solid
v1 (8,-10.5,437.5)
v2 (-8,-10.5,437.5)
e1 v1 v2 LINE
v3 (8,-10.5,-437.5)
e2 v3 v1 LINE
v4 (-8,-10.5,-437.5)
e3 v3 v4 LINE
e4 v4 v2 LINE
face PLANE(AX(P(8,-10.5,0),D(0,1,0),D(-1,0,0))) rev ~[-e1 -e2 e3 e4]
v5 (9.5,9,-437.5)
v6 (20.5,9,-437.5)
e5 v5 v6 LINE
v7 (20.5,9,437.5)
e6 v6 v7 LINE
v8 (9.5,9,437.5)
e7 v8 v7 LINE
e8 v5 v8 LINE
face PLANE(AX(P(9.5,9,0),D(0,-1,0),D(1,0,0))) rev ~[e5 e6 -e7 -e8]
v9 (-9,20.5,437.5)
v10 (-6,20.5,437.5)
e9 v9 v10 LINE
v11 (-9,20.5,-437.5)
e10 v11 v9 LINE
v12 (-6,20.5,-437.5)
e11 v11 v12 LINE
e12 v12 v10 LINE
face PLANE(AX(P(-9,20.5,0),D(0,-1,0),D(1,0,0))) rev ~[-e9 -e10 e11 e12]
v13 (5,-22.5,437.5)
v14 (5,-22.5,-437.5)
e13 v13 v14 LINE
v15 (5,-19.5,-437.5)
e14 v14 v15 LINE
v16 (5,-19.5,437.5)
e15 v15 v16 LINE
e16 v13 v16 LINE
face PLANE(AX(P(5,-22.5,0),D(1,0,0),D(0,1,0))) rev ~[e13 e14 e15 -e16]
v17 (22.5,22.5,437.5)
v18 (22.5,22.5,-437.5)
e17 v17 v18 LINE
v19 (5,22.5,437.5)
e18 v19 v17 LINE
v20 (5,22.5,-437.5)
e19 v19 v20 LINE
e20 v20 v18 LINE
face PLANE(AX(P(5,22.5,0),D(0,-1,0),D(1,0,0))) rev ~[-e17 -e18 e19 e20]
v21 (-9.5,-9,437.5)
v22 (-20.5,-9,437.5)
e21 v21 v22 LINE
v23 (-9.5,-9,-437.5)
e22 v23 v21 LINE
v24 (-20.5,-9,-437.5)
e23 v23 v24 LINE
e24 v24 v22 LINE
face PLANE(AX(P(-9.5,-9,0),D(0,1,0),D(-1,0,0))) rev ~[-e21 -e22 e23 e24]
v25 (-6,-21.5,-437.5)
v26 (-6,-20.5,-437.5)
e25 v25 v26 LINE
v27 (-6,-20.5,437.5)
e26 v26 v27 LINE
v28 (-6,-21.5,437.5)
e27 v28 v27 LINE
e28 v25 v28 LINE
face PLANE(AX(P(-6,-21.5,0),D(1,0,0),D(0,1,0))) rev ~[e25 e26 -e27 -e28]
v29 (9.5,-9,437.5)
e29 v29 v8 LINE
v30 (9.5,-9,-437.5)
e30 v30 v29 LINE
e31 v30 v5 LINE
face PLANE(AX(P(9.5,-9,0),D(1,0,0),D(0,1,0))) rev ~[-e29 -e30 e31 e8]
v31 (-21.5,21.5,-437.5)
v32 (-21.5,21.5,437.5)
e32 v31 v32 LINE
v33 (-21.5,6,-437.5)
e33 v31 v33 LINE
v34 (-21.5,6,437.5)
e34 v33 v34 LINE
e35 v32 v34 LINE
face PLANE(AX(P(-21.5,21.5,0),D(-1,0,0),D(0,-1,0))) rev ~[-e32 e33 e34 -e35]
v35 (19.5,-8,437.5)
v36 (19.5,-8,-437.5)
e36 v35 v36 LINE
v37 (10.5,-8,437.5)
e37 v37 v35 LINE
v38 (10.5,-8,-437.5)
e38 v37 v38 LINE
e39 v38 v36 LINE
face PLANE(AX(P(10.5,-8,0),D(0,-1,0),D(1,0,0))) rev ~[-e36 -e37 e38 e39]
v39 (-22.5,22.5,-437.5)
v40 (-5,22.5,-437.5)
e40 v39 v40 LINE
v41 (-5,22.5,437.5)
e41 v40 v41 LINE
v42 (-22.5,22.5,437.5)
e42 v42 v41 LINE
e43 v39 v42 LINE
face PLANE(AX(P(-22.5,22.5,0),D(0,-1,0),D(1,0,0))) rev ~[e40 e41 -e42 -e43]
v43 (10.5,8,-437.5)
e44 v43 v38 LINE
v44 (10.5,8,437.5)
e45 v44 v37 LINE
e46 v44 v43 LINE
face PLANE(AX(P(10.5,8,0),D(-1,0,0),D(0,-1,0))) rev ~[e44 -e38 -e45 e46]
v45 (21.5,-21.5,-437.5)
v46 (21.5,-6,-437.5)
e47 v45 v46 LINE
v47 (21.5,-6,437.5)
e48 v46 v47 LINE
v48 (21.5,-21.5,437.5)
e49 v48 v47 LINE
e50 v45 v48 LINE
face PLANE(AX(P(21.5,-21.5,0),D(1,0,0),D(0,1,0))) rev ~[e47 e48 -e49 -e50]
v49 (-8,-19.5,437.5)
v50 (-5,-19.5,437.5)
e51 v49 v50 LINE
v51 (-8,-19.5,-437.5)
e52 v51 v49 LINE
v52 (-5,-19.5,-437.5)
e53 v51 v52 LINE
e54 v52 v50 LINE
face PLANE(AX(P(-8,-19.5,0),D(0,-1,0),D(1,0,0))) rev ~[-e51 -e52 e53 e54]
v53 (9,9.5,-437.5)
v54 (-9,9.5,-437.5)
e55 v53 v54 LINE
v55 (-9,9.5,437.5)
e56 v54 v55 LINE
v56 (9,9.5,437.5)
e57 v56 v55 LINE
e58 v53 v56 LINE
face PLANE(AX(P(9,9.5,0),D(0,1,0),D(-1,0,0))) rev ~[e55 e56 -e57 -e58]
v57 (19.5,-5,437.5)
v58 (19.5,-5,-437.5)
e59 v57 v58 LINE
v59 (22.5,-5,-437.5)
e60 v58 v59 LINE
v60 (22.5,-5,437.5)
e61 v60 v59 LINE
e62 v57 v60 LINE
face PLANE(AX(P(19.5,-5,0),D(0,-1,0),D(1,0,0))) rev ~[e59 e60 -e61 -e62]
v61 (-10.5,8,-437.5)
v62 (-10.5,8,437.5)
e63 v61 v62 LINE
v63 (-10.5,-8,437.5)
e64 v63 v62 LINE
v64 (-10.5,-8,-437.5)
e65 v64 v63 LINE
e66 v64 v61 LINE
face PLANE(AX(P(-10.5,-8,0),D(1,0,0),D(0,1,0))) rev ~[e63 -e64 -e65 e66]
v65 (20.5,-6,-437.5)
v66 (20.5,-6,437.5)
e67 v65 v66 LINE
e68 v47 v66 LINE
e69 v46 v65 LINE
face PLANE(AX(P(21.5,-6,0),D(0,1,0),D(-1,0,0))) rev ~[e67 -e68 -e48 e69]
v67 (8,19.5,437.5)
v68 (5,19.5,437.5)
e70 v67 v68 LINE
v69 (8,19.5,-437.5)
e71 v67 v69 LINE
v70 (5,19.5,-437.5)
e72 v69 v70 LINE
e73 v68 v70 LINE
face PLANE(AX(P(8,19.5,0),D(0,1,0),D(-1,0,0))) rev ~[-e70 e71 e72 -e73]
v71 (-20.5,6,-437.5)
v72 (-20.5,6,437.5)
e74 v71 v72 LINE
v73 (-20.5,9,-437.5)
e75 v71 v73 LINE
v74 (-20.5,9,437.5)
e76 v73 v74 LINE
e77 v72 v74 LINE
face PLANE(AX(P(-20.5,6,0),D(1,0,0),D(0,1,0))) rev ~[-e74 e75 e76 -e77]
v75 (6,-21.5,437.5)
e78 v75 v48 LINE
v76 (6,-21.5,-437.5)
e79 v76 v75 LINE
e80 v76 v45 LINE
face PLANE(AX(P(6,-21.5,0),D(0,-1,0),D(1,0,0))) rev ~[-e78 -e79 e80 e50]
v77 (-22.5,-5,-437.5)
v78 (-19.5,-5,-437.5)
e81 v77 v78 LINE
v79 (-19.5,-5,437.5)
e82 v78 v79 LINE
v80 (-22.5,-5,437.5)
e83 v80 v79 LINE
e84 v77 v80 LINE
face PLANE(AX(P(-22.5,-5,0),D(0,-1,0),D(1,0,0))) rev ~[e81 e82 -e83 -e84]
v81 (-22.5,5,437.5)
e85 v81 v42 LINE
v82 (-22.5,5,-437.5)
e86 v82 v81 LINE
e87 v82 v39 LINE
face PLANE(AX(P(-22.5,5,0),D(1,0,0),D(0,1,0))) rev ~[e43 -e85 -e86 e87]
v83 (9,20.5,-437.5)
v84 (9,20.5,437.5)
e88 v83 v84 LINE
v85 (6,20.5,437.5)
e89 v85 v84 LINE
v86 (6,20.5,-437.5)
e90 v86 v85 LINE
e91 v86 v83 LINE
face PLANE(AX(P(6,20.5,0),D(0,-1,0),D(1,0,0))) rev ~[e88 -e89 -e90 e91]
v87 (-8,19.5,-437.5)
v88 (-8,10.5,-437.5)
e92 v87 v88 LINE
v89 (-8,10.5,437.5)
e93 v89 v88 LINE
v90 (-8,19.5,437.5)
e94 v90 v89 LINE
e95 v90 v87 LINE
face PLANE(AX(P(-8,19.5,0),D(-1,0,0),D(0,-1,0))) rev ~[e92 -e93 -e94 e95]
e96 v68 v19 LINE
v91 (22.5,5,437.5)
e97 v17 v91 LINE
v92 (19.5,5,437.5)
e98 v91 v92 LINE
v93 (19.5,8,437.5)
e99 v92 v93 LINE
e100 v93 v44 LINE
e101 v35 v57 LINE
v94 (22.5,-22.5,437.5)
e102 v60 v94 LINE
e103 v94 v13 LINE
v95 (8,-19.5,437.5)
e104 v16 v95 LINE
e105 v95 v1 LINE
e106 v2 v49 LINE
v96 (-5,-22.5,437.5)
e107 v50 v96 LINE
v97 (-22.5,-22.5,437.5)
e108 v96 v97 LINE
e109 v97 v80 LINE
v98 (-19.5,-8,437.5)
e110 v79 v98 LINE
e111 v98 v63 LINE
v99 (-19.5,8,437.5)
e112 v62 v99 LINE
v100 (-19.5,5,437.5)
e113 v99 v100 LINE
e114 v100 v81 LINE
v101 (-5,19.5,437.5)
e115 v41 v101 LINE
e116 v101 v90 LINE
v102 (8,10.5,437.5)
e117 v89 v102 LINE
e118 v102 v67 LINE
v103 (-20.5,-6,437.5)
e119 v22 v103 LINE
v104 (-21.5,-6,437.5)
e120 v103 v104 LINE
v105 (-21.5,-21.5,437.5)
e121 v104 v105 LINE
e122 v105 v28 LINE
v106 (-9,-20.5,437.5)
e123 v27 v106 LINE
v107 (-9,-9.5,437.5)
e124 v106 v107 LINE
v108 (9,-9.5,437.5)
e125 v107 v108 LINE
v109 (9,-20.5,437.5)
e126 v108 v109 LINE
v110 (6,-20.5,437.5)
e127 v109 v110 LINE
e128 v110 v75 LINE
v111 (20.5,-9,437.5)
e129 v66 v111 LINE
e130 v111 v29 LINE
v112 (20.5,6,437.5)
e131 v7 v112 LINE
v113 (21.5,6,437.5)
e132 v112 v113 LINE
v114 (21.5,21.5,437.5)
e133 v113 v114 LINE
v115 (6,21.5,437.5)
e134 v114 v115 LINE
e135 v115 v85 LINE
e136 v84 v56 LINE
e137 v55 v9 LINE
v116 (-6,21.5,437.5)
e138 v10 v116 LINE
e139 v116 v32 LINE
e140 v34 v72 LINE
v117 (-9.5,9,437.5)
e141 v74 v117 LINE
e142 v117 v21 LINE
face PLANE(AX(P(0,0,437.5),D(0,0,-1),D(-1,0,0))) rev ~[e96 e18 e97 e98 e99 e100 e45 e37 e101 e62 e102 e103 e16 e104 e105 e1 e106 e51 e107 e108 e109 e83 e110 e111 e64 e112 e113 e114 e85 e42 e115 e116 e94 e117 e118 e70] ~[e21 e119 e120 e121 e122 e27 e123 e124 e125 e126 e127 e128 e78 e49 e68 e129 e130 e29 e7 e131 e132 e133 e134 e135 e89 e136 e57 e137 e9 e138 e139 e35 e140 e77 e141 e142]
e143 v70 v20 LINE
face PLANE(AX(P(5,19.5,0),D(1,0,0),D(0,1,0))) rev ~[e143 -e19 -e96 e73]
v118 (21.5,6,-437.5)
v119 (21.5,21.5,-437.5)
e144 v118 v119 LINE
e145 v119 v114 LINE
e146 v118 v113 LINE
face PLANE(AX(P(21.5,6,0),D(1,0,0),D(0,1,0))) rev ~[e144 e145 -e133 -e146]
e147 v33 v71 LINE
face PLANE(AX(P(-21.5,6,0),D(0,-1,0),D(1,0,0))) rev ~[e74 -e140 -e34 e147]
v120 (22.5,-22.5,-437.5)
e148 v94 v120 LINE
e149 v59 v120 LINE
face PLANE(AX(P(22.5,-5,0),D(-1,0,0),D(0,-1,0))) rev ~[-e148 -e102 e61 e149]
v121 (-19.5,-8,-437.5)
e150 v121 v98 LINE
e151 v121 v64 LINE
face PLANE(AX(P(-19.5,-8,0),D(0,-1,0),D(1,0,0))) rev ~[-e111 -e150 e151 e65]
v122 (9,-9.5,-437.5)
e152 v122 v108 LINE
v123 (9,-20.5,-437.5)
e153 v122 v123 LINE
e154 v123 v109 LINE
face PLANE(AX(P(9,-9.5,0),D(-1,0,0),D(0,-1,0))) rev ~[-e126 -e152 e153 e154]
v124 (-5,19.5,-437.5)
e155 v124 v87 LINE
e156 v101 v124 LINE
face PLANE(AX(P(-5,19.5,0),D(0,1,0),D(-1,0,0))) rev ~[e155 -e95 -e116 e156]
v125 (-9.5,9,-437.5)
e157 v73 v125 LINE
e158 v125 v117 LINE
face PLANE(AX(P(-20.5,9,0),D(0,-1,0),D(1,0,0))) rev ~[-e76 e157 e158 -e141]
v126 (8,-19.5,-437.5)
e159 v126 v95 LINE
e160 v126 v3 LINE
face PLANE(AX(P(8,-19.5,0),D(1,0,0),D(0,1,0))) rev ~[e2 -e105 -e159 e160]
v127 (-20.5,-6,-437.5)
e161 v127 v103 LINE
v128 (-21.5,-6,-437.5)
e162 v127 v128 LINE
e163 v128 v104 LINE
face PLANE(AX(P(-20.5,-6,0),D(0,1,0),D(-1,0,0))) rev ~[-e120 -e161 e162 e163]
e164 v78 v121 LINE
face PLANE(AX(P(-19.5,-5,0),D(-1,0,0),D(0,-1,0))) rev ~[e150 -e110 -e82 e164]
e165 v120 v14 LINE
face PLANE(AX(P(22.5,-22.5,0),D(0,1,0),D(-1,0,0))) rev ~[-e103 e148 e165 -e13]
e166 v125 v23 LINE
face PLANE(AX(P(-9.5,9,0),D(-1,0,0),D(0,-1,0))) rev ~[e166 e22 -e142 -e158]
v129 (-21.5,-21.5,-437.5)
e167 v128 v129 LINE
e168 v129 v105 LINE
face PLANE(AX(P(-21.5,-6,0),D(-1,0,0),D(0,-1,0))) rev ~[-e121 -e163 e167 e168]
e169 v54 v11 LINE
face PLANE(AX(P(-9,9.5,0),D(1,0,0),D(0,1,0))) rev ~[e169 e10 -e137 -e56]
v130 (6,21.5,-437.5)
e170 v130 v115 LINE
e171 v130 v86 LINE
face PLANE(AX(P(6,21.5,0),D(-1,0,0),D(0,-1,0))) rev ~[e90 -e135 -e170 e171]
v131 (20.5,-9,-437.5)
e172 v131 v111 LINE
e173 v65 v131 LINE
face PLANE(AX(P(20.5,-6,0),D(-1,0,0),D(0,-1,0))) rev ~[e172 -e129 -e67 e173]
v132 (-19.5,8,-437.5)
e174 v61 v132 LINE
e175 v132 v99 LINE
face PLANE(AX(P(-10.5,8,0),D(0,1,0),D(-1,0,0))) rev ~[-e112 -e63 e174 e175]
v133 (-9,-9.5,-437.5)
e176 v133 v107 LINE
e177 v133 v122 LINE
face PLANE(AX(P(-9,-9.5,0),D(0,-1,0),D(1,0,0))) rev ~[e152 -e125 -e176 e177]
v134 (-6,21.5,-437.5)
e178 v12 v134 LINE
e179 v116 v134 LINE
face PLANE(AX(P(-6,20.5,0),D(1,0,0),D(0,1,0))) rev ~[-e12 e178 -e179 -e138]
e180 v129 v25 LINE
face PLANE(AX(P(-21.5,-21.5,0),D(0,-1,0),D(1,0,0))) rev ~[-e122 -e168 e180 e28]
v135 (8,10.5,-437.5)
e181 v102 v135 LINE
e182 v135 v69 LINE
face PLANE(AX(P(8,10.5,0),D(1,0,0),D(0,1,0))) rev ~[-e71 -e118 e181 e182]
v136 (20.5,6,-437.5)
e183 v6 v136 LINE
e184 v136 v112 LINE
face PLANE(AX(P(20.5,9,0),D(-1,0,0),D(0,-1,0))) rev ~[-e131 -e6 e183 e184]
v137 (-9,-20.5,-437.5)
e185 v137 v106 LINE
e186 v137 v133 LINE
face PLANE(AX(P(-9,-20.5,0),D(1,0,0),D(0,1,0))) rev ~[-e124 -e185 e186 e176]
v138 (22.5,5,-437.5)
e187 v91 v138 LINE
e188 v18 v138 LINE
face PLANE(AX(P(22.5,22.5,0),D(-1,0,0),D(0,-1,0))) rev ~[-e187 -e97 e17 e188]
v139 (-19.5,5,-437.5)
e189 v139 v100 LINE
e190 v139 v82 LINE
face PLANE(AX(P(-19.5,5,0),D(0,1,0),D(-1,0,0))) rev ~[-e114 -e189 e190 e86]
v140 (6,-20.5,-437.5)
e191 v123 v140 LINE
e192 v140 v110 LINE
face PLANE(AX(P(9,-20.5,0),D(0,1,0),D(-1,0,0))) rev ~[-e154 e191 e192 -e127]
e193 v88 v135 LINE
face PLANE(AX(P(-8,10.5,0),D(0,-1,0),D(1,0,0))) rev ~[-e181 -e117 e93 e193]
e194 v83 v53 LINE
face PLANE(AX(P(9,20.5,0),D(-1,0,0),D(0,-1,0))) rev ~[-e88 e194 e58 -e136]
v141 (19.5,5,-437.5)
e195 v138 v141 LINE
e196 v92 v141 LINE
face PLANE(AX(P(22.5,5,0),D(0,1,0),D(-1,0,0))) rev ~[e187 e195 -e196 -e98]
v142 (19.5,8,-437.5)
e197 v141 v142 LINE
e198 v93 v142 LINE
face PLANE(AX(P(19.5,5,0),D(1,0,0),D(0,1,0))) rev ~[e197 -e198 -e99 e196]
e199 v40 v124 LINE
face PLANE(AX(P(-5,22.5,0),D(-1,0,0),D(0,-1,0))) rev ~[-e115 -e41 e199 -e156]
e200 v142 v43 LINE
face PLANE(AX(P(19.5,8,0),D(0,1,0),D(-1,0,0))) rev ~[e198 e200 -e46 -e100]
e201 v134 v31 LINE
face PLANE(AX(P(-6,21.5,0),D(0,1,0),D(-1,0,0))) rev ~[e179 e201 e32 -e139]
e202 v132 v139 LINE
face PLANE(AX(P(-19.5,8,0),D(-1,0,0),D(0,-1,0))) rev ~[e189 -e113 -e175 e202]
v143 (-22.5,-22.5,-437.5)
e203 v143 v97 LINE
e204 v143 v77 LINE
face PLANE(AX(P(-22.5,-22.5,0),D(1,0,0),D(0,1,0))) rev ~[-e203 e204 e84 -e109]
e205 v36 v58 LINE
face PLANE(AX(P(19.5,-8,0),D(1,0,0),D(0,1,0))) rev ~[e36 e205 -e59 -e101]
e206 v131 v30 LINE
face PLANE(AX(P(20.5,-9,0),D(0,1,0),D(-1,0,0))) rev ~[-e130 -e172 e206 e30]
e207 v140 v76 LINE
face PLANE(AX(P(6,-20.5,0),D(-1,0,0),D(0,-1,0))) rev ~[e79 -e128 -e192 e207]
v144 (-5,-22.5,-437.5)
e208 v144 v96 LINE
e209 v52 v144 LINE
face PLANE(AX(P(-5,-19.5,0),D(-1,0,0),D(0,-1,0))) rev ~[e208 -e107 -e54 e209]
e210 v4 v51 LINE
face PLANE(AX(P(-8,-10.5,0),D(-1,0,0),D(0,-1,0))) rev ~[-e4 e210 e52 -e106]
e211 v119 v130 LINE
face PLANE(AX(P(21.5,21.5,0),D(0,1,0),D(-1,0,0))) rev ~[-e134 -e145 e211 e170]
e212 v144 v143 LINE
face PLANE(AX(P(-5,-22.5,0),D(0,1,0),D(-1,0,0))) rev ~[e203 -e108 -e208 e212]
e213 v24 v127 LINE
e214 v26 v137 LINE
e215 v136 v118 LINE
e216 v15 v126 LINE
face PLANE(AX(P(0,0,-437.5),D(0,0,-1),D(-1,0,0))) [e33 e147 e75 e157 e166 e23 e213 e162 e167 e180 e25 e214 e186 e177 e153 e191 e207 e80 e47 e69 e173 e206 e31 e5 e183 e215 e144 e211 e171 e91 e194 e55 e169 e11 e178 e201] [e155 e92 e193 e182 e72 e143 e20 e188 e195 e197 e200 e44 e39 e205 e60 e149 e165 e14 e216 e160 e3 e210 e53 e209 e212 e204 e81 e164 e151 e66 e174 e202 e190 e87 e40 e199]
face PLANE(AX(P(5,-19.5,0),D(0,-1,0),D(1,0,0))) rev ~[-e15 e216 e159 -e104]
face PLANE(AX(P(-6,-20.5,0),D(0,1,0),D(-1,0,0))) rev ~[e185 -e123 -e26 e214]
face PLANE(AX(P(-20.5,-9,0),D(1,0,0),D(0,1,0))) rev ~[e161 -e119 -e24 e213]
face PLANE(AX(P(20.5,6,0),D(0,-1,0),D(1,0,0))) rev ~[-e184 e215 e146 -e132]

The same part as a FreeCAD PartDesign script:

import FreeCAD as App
import Part
import Sketcher

V = App.Vector
Q = App.Units.Quantity


def add_polygon(sketch, points):
    """Adds a closed chain of lines whose ends are joined by coincident constraints."""
    first, n = sketch.GeometryCount, len(points)
    for a, b in zip(points, points[1:] + points[:1]):
        sketch.addGeometry(Part.LineSegment(App.Vector(*a, 0), App.Vector(*b, 0)), False)
    for i in range(n):
        sketch.addConstraint(Sketcher.Constraint("Coincident", first + i, 2, first + (i + 1) % n, 1))

doc = App.newDocument("Part")
body = doc.addObject("PartDesign::Body", "Body")

sketch1 = body.newObject("Sketcher::SketchObject", "Sketch")
sketch1.AttachmentSupport = (doc.getObject("XY_Plane"), [""])
sketch1.MapMode = "FlatFace"
add_polygon(sketch1, [(-5, 19.5), (-5, 22.5), (-22.5, 22.5), (-22.5, 5), (-19.5, 5), (-19.5, 8), (-10.5, 8), (-10.5, -8), (-19.5, -8), (-19.5, -5), (-22.5, -5), (-22.5, -22.5), (-5, -22.5), (-5, -19.5), (-8, -19.5), (-8, -10.5), (8, -10.5), (8, -19.5), (5, -19.5), (5, -22.5), (22.5, -22.5), (22.5, -5), (19.5, -5), (19.5, -8), (10.5, -8), (10.5, 8), (19.5, 8), (19.5, 5), (22.5, 5), (22.5, 22.5), (5, 22.5), (5, 19.5), (8, 19.5), (8, 10.5), (-8, 10.5), (-8, 19.5)])
add_polygon(sketch1, [(-6, 21.5), (-6, 20.5), (-9, 20.5), (-9, 9.5), (9, 9.5), (9, 20.5), (6, 20.5), (6, 21.5), (21.5, 21.5), (21.5, 6), (20.5, 6), (20.5, 9), (9.5, 9), (9.5, -9), (20.5, -9), (20.5, -6), (21.5, -6), (21.5, -21.5), (6, -21.5), (6, -20.5), (9, -20.5), (9, -9.5), (-9, -9.5), (-9, -20.5), (-6, -20.5), (-6, -21.5), (-21.5, -21.5), (-21.5, -6), (-20.5, -6), (-20.5, -9), (-9.5, -9), (-9.5, 9), (-20.5, 9), (-20.5, 6), (-21.5, 6), (-21.5, 21.5)])
sketch1.addConstraint([
    Sketcher.Constraint("Vertical", 0),
    Sketcher.Constraint("Horizontal", 1),
    Sketcher.Constraint("Vertical", 2),
    Sketcher.Constraint("Horizontal", 3),
    Sketcher.Constraint("Vertical", 4),
    Sketcher.Constraint("Horizontal", 5),
    Sketcher.Constraint("Vertical", 6),
    Sketcher.Constraint("Horizontal", 7),
    Sketcher.Constraint("Vertical", 8),
    Sketcher.Constraint("Horizontal", 9),
    Sketcher.Constraint("Vertical", 10),
    Sketcher.Constraint("Horizontal", 11),
    Sketcher.Constraint("Vertical", 12),
    Sketcher.Constraint("Horizontal", 13),
    Sketcher.Constraint("Vertical", 14),
    Sketcher.Constraint("Horizontal", 15),
    Sketcher.Constraint("Vertical", 16),
    Sketcher.Constraint("Horizontal", 17),
    Sketcher.Constraint("Vertical", 18),
    Sketcher.Constraint("Horizontal", 19),
    Sketcher.Constraint("Vertical", 20),
    Sketcher.Constraint("Horizontal", 21),
    Sketcher.Constraint("Vertical", 22),
    Sketcher.Constraint("Horizontal", 23),
    Sketcher.Constraint("Vertical", 24),
    Sketcher.Constraint("Horizontal", 25),
    Sketcher.Constraint("Vertical", 26),
    Sketcher.Constraint("Horizontal", 27),
    Sketcher.Constraint("Vertical", 28),
    Sketcher.Constraint("Horizontal", 29),
    Sketcher.Constraint("Vertical", 30),
    Sketcher.Constraint("Horizontal", 31),
    Sketcher.Constraint("Vertical", 32),
    Sketcher.Constraint("Horizontal", 33),
    Sketcher.Constraint("Vertical", 34),
    Sketcher.Constraint("Horizontal", 35),
    Sketcher.Constraint("Vertical", 36),
    Sketcher.Constraint("Horizontal", 37),
    Sketcher.Constraint("Vertical", 38),
    Sketcher.Constraint("Horizontal", 39),
    Sketcher.Constraint("Vertical", 40),
    Sketcher.Constraint("Horizontal", 41),
    Sketcher.Constraint("Vertical", 42),
    Sketcher.Constraint("Horizontal", 43),
    Sketcher.Constraint("Vertical", 44),
    Sketcher.Constraint("Horizontal", 45),
    Sketcher.Constraint("Vertical", 46),
    Sketcher.Constraint("Horizontal", 47),
    Sketcher.Constraint("Vertical", 48),
    Sketcher.Constraint("Horizontal", 49),
    Sketcher.Constraint("Vertical", 50),
    Sketcher.Constraint("Horizontal", 51),
    Sketcher.Constraint("Vertical", 52),
    Sketcher.Constraint("Horizontal", 53),
    Sketcher.Constraint("Vertical", 54),
    Sketcher.Constraint("Horizontal", 55),
    Sketcher.Constraint("Vertical", 56),
    Sketcher.Constraint("Horizontal", 57),
    Sketcher.Constraint("Vertical", 58),
    Sketcher.Constraint("Horizontal", 59),
    Sketcher.Constraint("Vertical", 60),
    Sketcher.Constraint("Horizontal", 61),
    Sketcher.Constraint("Vertical", 62),
    Sketcher.Constraint("Horizontal", 63),
    Sketcher.Constraint("Vertical", 64),
    Sketcher.Constraint("Horizontal", 65),
    Sketcher.Constraint("Vertical", 66),
    Sketcher.Constraint("Horizontal", 67),
    Sketcher.Constraint("Vertical", 68),
    Sketcher.Constraint("Horizontal", 69),
    Sketcher.Constraint("Vertical", 70),
    Sketcher.Constraint("Horizontal", 71),
    Sketcher.Constraint("Symmetric", 0, 2, 18, 2, -1, 1),
    Sketcher.Constraint("Symmetric", 2, 2, 20, 2, -1, 1),
    Sketcher.Constraint("Symmetric", 4, 2, 22, 2, -1, 1),
    Sketcher.Constraint("Symmetric", 6, 2, 24, 2, -1, 1),
    Sketcher.Constraint("Symmetric", 8, 2, 26, 2, -1, 1),
    Sketcher.Constraint("Symmetric", 10, 2, 28, 2, -1, 1),
    Sketcher.Constraint("Symmetric", 12, 2, 30, 2, -1, 1),
    Sketcher.Constraint("Symmetric", 14, 2, 32, 2, -1, 1),
    Sketcher.Constraint("Symmetric", 16, 2, 34, 2, -1, 1),
    Sketcher.Constraint("Symmetric", 36, 2, 54, 2, -1, 1),
    Sketcher.Constraint("Symmetric", 38, 2, 56, 2, -1, 1),
    Sketcher.Constraint("Symmetric", 40, 2, 58, 2, -1, 1),
    Sketcher.Constraint("Symmetric", 42, 2, 60, 2, -1, 1),
    Sketcher.Constraint("Symmetric", 44, 2, 62, 2, -1, 1),
    Sketcher.Constraint("Symmetric", 46, 2, 64, 2, -1, 1),
    Sketcher.Constraint("Symmetric", 48, 2, 66, 2, -1, 1),
    Sketcher.Constraint("Symmetric", 50, 2, 68, 2, -1, 1),
    Sketcher.Constraint("Symmetric", 52, 2, 70, 2, -1, 1),
    Sketcher.Constraint("Symmetric", 13, 2, 16, 2, -2),
    Sketcher.Constraint("Symmetric", 11, 2, 18, 2, -2),
    Sketcher.Constraint("Symmetric", 9, 2, 20, 2, -2),
    Sketcher.Constraint("Symmetric", 7, 2, 22, 2, -2),
    Sketcher.Constraint("Symmetric", 37, 2, 40, 2, -2),
    Sketcher.Constraint("Symmetric", 53, 2, 60, 2, -2),
    Sketcher.Constraint("Symmetric", 51, 2, 62, 2, -2),
    Sketcher.Constraint("Symmetric", 49, 2, 64, 2, -2),
    Sketcher.Constraint("Equal", 9, 13),
    Sketcher.Constraint("Equal", 35, 37),
    Sketcher.Constraint("Equal", 59, 0),
    Sketcher.Constraint("Equal", 29, 2),
    Sketcher.Constraint("Equal", 0, 4),
    Sketcher.Constraint("Equal", 33, 6),
    Sketcher.Constraint("Equal", 25, 14),
    Sketcher.Constraint("Equal", 69, 36),
    Sketcher.Constraint("Equal", 67, 38),
    Sketcher.Constraint("Equal", 71, 44),
    Sketcher.Constraint("Equal", 30, 46),
    Sketcher.Constraint("Equal", 57, 48),
    Sketcher.Constraint("DistanceX", 3, 1, 3, 2, Q("3 mm")),
    Sketcher.Constraint("DistanceX", 5, 1, 5, 2, Q("9 mm")),
    Sketcher.Constraint("DistanceX", 15, 1, 15, 2, Q("16 mm")),
    Sketcher.Constraint("DistanceX", 39, 1, 39, 2, Q("18 mm")),
    Sketcher.Constraint("DistanceX", 45, 2, 45, 1, Q("1 mm")),
    Sketcher.Constraint("DistanceX", 47, 2, 47, 1, Q("11 mm")),
    Sketcher.Constraint("DistanceX", 1, 2, 1, 1, Q("17.5 mm")),
    Sketcher.Constraint("DistanceX", 43, 1, 43, 2, Q("15.5 mm")),
])
pad1 = body.newObject("PartDesign::Pad", "Pad")
pad1.Profile = sketch1
pad1.Length = 875
pad1.Midplane = True

doc.recompute()
